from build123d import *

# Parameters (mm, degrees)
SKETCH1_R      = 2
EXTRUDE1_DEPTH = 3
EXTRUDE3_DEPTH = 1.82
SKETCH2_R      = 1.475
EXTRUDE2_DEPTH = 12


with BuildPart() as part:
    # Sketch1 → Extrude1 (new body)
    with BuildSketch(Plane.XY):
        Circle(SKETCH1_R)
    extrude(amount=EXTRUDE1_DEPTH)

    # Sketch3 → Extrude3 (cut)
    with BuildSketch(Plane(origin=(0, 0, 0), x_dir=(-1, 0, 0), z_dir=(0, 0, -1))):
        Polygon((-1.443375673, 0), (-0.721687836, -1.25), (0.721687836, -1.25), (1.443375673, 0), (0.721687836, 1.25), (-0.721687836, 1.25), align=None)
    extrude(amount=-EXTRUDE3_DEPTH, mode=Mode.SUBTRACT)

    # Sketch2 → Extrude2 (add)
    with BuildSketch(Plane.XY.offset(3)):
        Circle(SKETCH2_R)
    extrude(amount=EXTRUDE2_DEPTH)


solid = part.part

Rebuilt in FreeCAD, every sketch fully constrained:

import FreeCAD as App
import Part
import Sketcher
from FreeCAD import Vector
Q = App.Units.Quantity

doc = App.newDocument("Part")
body = doc.addObject("PartDesign::Body", "Body")

# Sketch on XY plane
sketch1 = body.newObject("Sketcher::SketchObject", "Sketch")
sketch1.AttachmentSupport = (doc.getObject("XY_Plane"), [""])
sketch1.MapMode = "FlatFace"
sketch1.addGeometry(Part.Circle(Vector(0, 0, 0), Vector(0, 0, 1), 2), False)
sketch1.addConstraint([
    Sketcher.Constraint("Coincident", 0, 3, -1, 1),
    Sketcher.Constraint("Diameter", 0, Q("4 mm")),
])
pad1 = body.newObject("PartDesign::Pad", "Pad")
pad1.Profile = sketch1
pad1.Length = 3

# Sketch on XY plane
sketch2 = body.newObject("Sketcher::SketchObject", "Sketch001")
sketch2.AttachmentSupport = (doc.getObject("XY_Plane"), [""])
sketch2.MapMode = "FlatFace"
sketch2.addGeometry([
    Part.LineSegment(Vector(1.443376, 0, 0), Vector(0.721688, -1.25, 0)),  # 0
    Part.LineSegment(Vector(0.721688, -1.25, 0), Vector(-0.721688, -1.25, 0)),  # 1
    Part.LineSegment(Vector(-0.721688, -1.25, 0), Vector(-1.443376, 0, 0)),  # 2
    Part.LineSegment(Vector(-1.443376, 0, 0), Vector(-0.721688, 1.25, 0)),  # 3
    Part.LineSegment(Vector(-0.721688, 1.25, 0), Vector(0.721688, 1.25, 0)),  # 4
    Part.LineSegment(Vector(0.721688, 1.25, 0), Vector(1.443376, 0, 0)),  # 5
], False)
sketch2.addConstraint([
    Sketcher.Constraint("Coincident", 0, 2, 1, 1),
    Sketcher.Constraint("Coincident", 1, 2, 2, 1),
    Sketcher.Constraint("Coincident", 2, 2, 3, 1),
    Sketcher.Constraint("Coincident", 3, 2, 4, 1),
    Sketcher.Constraint("Coincident", 4, 2, 5, 1),
    Sketcher.Constraint("Coincident", 5, 2, 0, 1),
    Sketcher.Constraint("Horizontal", 1),
    Sketcher.Constraint("Horizontal", 4),
    Sketcher.Constraint("Symmetric", 0, 2, 3, 2, -1, 1),
    Sketcher.Constraint("Symmetric", 2, 2, 5, 2, -1, 1),
    Sketcher.Constraint("PointOnObject", 2, 2, -1),
    Sketcher.Constraint("Parallel", 2, 5),
    Sketcher.Constraint("Vertical", 1, 2, 3, 2),
    Sketcher.Constraint("Angle", 0, Q("-120 deg")),
    Sketcher.Constraint("DistanceY", 1, 2, 3, 2, Q("2.5 mm")),
    Sketcher.Constraint("DistanceX", 1, 2, 1, 1, Q("1.443376 mm")),
])
pocket1 = body.newObject("PartDesign::Pocket", "Pocket")
pocket1.Profile = sketch2
pocket1.Length = 1.82
pocket1.Reversed = True

# Sketch on XY plane
sketch3 = body.newObject("Sketcher::SketchObject", "Sketch002")
sketch3.AttachmentSupport = (doc.getObject("XY_Plane"), [""])
sketch3.MapMode = "FlatFace"
sketch3.AttachmentOffset = App.Placement(Vector(0, 0, 3), App.Rotation())
sketch3.addGeometry(Part.Circle(Vector(0, 0, 0), Vector(0, 0, 1), 1.475), False)
sketch3.addConstraint([
    Sketcher.Constraint("Coincident", 0, 3, -1, 1),
    Sketcher.Constraint("Diameter", 0, Q("2.95 mm")),
])
pad2 = body.newObject("PartDesign::Pad", "Pad001")
pad2.Profile = sketch3
pad2.Length = 12

doc.recompute()
